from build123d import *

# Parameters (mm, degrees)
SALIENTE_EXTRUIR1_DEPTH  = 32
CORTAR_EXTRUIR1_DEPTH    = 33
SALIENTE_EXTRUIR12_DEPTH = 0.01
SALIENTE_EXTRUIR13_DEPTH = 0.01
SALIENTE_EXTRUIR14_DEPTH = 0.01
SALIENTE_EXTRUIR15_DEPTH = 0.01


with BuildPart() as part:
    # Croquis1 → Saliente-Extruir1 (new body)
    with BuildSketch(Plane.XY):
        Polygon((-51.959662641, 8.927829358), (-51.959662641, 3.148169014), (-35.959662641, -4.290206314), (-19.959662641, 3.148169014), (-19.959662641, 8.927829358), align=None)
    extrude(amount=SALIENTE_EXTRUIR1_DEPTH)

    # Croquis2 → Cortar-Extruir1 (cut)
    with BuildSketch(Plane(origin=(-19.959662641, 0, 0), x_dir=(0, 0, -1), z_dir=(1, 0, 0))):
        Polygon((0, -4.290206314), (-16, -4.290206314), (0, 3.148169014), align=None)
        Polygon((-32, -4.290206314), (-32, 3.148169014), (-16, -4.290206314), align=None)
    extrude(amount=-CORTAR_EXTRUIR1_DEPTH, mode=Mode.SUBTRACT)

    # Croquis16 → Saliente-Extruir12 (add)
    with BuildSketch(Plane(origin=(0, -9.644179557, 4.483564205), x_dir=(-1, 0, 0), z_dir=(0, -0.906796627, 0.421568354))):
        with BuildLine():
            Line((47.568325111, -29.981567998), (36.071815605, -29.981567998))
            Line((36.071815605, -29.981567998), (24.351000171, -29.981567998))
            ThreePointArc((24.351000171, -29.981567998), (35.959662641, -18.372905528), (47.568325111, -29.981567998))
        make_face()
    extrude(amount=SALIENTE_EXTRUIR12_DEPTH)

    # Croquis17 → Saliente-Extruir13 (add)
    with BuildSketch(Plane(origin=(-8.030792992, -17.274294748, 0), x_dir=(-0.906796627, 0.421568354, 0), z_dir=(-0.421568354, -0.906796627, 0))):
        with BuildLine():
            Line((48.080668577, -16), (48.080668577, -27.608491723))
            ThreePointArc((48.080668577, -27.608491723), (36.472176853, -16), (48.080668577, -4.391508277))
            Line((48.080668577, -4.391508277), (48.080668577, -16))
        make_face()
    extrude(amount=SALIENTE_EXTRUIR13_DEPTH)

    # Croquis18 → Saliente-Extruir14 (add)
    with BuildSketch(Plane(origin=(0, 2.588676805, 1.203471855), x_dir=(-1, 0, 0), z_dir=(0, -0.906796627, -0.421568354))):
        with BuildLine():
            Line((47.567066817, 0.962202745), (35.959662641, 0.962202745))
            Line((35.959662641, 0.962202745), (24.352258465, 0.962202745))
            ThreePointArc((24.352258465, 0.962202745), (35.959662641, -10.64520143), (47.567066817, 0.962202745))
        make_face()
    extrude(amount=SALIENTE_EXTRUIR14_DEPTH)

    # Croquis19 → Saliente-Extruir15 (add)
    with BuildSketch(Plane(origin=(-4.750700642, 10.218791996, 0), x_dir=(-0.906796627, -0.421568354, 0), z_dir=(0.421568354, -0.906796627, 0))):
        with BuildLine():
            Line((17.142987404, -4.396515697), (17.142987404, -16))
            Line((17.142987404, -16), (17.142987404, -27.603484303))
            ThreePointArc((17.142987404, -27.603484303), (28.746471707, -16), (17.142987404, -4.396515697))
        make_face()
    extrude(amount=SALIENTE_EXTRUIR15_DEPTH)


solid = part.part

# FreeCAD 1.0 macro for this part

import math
import FreeCAD as App
import Part
import Sketcher

doc = App.newDocument("Part")
body = doc.addObject("PartDesign::Body", "Body")

# Sketch on XY plane
sketch1 = body.newObject("Sketcher::SketchObject", "Sketch")
sketch1.AttachmentSupport = (doc.getObject("XY_Plane"), [""])
sketch1.MapMode = "FlatFace"
sketch1.addGeometry(Part.LineSegment(App.Vector(-52, 9, 0), App.Vector(-52, 3, 0)), False)
sketch1.addGeometry(Part.LineSegment(App.Vector(-52, 3, 0), App.Vector(-36, -4, 0)), False)
sketch1.addGeometry(Part.LineSegment(App.Vector(-36, -4, 0), App.Vector(-20, 3, 0)), False)
sketch1.addGeometry(Part.LineSegment(App.Vector(-20, 3, 0), App.Vector(-20, 9, 0)), False)
sketch1.addGeometry(Part.LineSegment(App.Vector(-20, 9, 0), App.Vector(-52, 9, 0)), False)
sketch1.addConstraint(Sketcher.Constraint("Coincident", 0, 2, 1, 1))
sketch1.addConstraint(Sketcher.Constraint("Coincident", 1, 2, 2, 1))
sketch1.addConstraint(Sketcher.Constraint("Coincident", 2, 2, 3, 1))
sketch1.addConstraint(Sketcher.Constraint("Coincident", 3, 2, 4, 1))
sketch1.addConstraint(Sketcher.Constraint("Coincident", 4, 2, 0, 1))
sketch1.addConstraint(Sketcher.Constraint("Vertical", 0))
sketch1.addConstraint(Sketcher.Constraint("Vertical", 3))
sketch1.addConstraint(Sketcher.Constraint("Horizontal", 4))
sketch1.addConstraint(Sketcher.Constraint("Horizontal", 0, 2, 2, 2))
sketch1.addConstraint(Sketcher.Constraint("Equal", 1, 2))
sketch1.addConstraint(Sketcher.Constraint("DistanceX", 4, 2, 4, 1, 32.0))
sketch1.addConstraint(Sketcher.Constraint("DistanceY", 0, 2, 0, 1, 5.77966))
sketch1.addConstraint(Sketcher.Constraint("Distance", 1, 17.64453))
sketch1.addConstraint(Sketcher.Constraint("DistanceY", -1, 1, 0, 2, 3.148169))
sketch1.addConstraint(Sketcher.Constraint("DistanceX", 0, 2, -1, 1, 51.959663))
pad1 = body.newObject("PartDesign::Pad", "Pad")
pad1.Profile = sketch1
pad1.Length = 32

# Sketch on YZ plane
sketch2 = body.newObject("Sketcher::SketchObject", "Sketch001")
sketch2.AttachmentSupport = (doc.getObject("YZ_Plane"), [""])
sketch2.MapMode = "FlatFace"
sketch2.AttachmentOffset = App.Placement(App.Vector(0, 0, -19.959663), App.Rotation())
sketch2.addGeometry(Part.LineSegment(App.Vector(-4, 16, 0), App.Vector(-4, 0, 0)), False)
sketch2.addGeometry(Part.LineSegment(App.Vector(-4, 0, 0), App.Vector(3, 0, 0)), False)
sketch2.addGeometry(Part.LineSegment(App.Vector(3, 0, 0), App.Vector(-4, 16, 0)), False)
sketch2.addGeometry(Part.LineSegment(App.Vector(3, 32, 0), App.Vector(-4, 32, 0)), False)
sketch2.addGeometry(Part.LineSegment(App.Vector(-4, 32, 0), App.Vector(-4, 16, 0)), False)
sketch2.addGeometry(Part.LineSegment(App.Vector(-4, 16, 0), App.Vector(3, 32, 0)), False)
sketch2.addConstraint(Sketcher.Constraint("Coincident", 0, 2, 1, 1))
sketch2.addConstraint(Sketcher.Constraint("Coincident", 1, 2, 2, 1))
sketch2.addConstraint(Sketcher.Constraint("Coincident", 2, 2, 0, 1))
sketch2.addConstraint(Sketcher.Constraint("Coincident", 3, 2, 4, 1))
sketch2.addConstraint(Sketcher.Constraint("Coincident", 4, 2, 5, 1))
sketch2.addConstraint(Sketcher.Constraint("Coincident", 5, 2, 3, 1))
sketch2.addConstraint(Sketcher.Constraint("Vertical", 0))
sketch2.addConstraint(Sketcher.Constraint("Horizontal", 1))
sketch2.addConstraint(Sketcher.Constraint("Horizontal", 3))
sketch2.addConstraint(Sketcher.Constraint("Vertical", 4))
sketch2.addConstraint(Sketcher.Constraint("Coincident", 4, 2, 2, 2))
sketch2.addConstraint(Sketcher.Constraint("PointOnObject", 0, 2, -1))
sketch2.addConstraint(Sketcher.Constraint("Vertical", 1, 2, 5, 2))
sketch2.addConstraint(Sketcher.Constraint("Equal", 0, 4))
sketch2.addConstraint(Sketcher.Constraint("DistanceY", 0, 2, 0, 1, 16.0))
sketch2.addConstraint(Sketcher.Constraint("Distance", 2, 17.64453))
sketch2.addConstraint(Sketcher.Constraint("DistanceX", -1, 1, 1, 2, 3.148169))
pocket1 = body.newObject("PartDesign::Pocket", "Pocket")
pocket1.Profile = sketch2
pocket1.Length = 33

# Sketch on an angled plane
sketch3 = body.newObject("Sketcher::SketchObject", "Sketch002")
sketch3.Placement = App.Placement(App.Vector(0, -9.64418, 4.483564), App.Rotation(App.Vector(-1, 0, 0), App.Vector(0, -0.421568354, -0.906796627), App.Vector(0, -0.906796627, 0.421568354), "ZXY"))
sketch3.addGeometry(Part.LineSegment(App.Vector(24, -30, 0), App.Vector(48, -30, 0)), False)
sketch3.addGeometry(Part.ArcOfCircle(Part.Circle(App.Vector(36, -30, 0), App.Vector(0, 0, 1), 12), math.radians(0), math.radians(180)), False)
sketch3.addConstraint(Sketcher.Constraint("Coincident", 0, 1, 1, 2))
sketch3.addConstraint(Sketcher.Constraint("Coincident", 1, 1, 0, 2))
sketch3.addConstraint(Sketcher.Constraint("Horizontal", 0))
sketch3.addConstraint(Sketcher.Constraint("Horizontal", 1, 3, 0, 1))
sketch3.addConstraint(Sketcher.Constraint("DistanceX", -1, 1, 0, 1, 24.351))
sketch3.addConstraint(Sketcher.Constraint("Radius", 1, 11.608662))
sketch3.addConstraint(Sketcher.Constraint("DistanceY", 1, 3, -1, 1, 29.981568))
pad2 = body.newObject("PartDesign::Pad", "Pad001")
pad2.Profile = sketch3
pad2.Length = 0.01

# Sketch on an angled plane
sketch4 = body.newObject("Sketcher::SketchObject", "Sketch003")
sketch4.Placement = App.Placement(App.Vector(-8.030793, -17.274295, 0), App.Rotation(App.Vector(-0.906796627, 0.421568354, 0), App.Vector(0, 0, -1), App.Vector(-0.421568354, -0.906796627, 0), "ZXY"))
sketch4.addGeometry(Part.ArcOfCircle(Part.Circle(App.Vector(48, -16, 0), App.Vector(0, 0, 1), 12), math.radians(90), math.radians(270)), False)
sketch4.addGeometry(Part.LineSegment(App.Vector(48, -28, 0), App.Vector(48, -4, 0)), False)
sketch4.addConstraint(Sketcher.Constraint("Coincident", 0, 1, 1, 2))
sketch4.addConstraint(Sketcher.Constraint("Coincident", 1, 1, 0, 2))
sketch4.addConstraint(Sketcher.Constraint("Vertical", 1))
sketch4.addConstraint(Sketcher.Constraint("DistanceY", 0, 3, -1, 1, 16.0))
sketch4.addConstraint(Sketcher.Constraint("Radius", 0, 11.608492))
sketch4.addConstraint(Sketcher.Constraint("DistanceX", -1, 1, 0, 3, 48.080669))
sketch4.addConstraint(Sketcher.Constraint("DistanceX", -1, 1, 0, 1, 48.080669))
pad3 = body.newObject("PartDesign::Pad", "Pad002")
pad3.Profile = sketch4
pad3.Length = 0.01

# Sketch on an angled plane
sketch5 = body.newObject("Sketcher::SketchObject", "Sketch004")
sketch5.Placement = App.Placement(App.Vector(0, 2.588677, 1.203472), App.Rotation(App.Vector(-1, 0, 0), App.Vector(0, 0.421568354, -0.906796627), App.Vector(0, -0.906796627, -0.421568354), "ZXY"))
sketch5.addGeometry(Part.LineSegment(App.Vector(48, 1, 0), App.Vector(24, 1, 0)), False)
sketch5.addGeometry(Part.ArcOfCircle(Part.Circle(App.Vector(36, 1, 0), App.Vector(0, 0, 1), 12), math.radians(-180), math.radians(0)), False)
sketch5.addConstraint(Sketcher.Constraint("Coincident", 0, 1, 1, 2))
sketch5.addConstraint(Sketcher.Constraint("Coincident", 1, 1, 0, 2))
sketch5.addConstraint(Sketcher.Constraint("Horizontal", 0))
sketch5.addConstraint(Sketcher.Constraint("Horizontal", 1, 3, 0, 1))
sketch5.addConstraint(Sketcher.Constraint("Radius", 1, 11.607404))
sketch5.addConstraint(Sketcher.Constraint("DistanceX", -1, 1, 1, 1, 24.352258))
sketch5.addConstraint(Sketcher.Constraint("DistanceY", -1, 1, 1, 3, 0.962203))
pad4 = body.newObject("PartDesign::Pad", "Pad003")
pad4.Profile = sketch5
pad4.Length = 0.01

# Sketch on an angled plane
sketch6 = body.newObject("Sketcher::SketchObject", "Sketch005")
sketch6.Placement = App.Placement(App.Vector(-4.750701, 10.218792, 0), App.Rotation(App.Vector(-0.906796627, -0.421568354, 0), App.Vector(0, 0, -1), App.Vector(0.421568354, -0.906796627, 0), "ZXY"))
sketch6.addGeometry(Part.LineSegment(App.Vector(17, -4, 0), App.Vector(17, -28, 0)), False)
sketch6.addGeometry(Part.ArcOfCircle(Part.Circle(App.Vector(17, -16, 0), App.Vector(0, 0, 1), 12), math.radians(-90), math.radians(90)), False)
sketch6.addConstraint(Sketcher.Constraint("Coincident", 0, 1, 1, 2))
sketch6.addConstraint(Sketcher.Constraint("Coincident", 1, 1, 0, 2))
sketch6.addConstraint(Sketcher.Constraint("Vertical", 0))
sketch6.addConstraint(Sketcher.Constraint("Vertical", 1, 3, 0, 1))
sketch6.addConstraint(Sketcher.Constraint("DistanceY", 1, 3, -1, 1, 16.0))
sketch6.addConstraint(Sketcher.Constraint("Radius", 1, 11.603484))
sketch6.addConstraint(Sketcher.Constraint("DistanceX", -1, 1, 1, 3, 17.142987))
pad5 = body.newObject("PartDesign::Pad", "Pad004")
pad5.Profile = sketch6
pad5.Length = 0.01

doc.recompute()
